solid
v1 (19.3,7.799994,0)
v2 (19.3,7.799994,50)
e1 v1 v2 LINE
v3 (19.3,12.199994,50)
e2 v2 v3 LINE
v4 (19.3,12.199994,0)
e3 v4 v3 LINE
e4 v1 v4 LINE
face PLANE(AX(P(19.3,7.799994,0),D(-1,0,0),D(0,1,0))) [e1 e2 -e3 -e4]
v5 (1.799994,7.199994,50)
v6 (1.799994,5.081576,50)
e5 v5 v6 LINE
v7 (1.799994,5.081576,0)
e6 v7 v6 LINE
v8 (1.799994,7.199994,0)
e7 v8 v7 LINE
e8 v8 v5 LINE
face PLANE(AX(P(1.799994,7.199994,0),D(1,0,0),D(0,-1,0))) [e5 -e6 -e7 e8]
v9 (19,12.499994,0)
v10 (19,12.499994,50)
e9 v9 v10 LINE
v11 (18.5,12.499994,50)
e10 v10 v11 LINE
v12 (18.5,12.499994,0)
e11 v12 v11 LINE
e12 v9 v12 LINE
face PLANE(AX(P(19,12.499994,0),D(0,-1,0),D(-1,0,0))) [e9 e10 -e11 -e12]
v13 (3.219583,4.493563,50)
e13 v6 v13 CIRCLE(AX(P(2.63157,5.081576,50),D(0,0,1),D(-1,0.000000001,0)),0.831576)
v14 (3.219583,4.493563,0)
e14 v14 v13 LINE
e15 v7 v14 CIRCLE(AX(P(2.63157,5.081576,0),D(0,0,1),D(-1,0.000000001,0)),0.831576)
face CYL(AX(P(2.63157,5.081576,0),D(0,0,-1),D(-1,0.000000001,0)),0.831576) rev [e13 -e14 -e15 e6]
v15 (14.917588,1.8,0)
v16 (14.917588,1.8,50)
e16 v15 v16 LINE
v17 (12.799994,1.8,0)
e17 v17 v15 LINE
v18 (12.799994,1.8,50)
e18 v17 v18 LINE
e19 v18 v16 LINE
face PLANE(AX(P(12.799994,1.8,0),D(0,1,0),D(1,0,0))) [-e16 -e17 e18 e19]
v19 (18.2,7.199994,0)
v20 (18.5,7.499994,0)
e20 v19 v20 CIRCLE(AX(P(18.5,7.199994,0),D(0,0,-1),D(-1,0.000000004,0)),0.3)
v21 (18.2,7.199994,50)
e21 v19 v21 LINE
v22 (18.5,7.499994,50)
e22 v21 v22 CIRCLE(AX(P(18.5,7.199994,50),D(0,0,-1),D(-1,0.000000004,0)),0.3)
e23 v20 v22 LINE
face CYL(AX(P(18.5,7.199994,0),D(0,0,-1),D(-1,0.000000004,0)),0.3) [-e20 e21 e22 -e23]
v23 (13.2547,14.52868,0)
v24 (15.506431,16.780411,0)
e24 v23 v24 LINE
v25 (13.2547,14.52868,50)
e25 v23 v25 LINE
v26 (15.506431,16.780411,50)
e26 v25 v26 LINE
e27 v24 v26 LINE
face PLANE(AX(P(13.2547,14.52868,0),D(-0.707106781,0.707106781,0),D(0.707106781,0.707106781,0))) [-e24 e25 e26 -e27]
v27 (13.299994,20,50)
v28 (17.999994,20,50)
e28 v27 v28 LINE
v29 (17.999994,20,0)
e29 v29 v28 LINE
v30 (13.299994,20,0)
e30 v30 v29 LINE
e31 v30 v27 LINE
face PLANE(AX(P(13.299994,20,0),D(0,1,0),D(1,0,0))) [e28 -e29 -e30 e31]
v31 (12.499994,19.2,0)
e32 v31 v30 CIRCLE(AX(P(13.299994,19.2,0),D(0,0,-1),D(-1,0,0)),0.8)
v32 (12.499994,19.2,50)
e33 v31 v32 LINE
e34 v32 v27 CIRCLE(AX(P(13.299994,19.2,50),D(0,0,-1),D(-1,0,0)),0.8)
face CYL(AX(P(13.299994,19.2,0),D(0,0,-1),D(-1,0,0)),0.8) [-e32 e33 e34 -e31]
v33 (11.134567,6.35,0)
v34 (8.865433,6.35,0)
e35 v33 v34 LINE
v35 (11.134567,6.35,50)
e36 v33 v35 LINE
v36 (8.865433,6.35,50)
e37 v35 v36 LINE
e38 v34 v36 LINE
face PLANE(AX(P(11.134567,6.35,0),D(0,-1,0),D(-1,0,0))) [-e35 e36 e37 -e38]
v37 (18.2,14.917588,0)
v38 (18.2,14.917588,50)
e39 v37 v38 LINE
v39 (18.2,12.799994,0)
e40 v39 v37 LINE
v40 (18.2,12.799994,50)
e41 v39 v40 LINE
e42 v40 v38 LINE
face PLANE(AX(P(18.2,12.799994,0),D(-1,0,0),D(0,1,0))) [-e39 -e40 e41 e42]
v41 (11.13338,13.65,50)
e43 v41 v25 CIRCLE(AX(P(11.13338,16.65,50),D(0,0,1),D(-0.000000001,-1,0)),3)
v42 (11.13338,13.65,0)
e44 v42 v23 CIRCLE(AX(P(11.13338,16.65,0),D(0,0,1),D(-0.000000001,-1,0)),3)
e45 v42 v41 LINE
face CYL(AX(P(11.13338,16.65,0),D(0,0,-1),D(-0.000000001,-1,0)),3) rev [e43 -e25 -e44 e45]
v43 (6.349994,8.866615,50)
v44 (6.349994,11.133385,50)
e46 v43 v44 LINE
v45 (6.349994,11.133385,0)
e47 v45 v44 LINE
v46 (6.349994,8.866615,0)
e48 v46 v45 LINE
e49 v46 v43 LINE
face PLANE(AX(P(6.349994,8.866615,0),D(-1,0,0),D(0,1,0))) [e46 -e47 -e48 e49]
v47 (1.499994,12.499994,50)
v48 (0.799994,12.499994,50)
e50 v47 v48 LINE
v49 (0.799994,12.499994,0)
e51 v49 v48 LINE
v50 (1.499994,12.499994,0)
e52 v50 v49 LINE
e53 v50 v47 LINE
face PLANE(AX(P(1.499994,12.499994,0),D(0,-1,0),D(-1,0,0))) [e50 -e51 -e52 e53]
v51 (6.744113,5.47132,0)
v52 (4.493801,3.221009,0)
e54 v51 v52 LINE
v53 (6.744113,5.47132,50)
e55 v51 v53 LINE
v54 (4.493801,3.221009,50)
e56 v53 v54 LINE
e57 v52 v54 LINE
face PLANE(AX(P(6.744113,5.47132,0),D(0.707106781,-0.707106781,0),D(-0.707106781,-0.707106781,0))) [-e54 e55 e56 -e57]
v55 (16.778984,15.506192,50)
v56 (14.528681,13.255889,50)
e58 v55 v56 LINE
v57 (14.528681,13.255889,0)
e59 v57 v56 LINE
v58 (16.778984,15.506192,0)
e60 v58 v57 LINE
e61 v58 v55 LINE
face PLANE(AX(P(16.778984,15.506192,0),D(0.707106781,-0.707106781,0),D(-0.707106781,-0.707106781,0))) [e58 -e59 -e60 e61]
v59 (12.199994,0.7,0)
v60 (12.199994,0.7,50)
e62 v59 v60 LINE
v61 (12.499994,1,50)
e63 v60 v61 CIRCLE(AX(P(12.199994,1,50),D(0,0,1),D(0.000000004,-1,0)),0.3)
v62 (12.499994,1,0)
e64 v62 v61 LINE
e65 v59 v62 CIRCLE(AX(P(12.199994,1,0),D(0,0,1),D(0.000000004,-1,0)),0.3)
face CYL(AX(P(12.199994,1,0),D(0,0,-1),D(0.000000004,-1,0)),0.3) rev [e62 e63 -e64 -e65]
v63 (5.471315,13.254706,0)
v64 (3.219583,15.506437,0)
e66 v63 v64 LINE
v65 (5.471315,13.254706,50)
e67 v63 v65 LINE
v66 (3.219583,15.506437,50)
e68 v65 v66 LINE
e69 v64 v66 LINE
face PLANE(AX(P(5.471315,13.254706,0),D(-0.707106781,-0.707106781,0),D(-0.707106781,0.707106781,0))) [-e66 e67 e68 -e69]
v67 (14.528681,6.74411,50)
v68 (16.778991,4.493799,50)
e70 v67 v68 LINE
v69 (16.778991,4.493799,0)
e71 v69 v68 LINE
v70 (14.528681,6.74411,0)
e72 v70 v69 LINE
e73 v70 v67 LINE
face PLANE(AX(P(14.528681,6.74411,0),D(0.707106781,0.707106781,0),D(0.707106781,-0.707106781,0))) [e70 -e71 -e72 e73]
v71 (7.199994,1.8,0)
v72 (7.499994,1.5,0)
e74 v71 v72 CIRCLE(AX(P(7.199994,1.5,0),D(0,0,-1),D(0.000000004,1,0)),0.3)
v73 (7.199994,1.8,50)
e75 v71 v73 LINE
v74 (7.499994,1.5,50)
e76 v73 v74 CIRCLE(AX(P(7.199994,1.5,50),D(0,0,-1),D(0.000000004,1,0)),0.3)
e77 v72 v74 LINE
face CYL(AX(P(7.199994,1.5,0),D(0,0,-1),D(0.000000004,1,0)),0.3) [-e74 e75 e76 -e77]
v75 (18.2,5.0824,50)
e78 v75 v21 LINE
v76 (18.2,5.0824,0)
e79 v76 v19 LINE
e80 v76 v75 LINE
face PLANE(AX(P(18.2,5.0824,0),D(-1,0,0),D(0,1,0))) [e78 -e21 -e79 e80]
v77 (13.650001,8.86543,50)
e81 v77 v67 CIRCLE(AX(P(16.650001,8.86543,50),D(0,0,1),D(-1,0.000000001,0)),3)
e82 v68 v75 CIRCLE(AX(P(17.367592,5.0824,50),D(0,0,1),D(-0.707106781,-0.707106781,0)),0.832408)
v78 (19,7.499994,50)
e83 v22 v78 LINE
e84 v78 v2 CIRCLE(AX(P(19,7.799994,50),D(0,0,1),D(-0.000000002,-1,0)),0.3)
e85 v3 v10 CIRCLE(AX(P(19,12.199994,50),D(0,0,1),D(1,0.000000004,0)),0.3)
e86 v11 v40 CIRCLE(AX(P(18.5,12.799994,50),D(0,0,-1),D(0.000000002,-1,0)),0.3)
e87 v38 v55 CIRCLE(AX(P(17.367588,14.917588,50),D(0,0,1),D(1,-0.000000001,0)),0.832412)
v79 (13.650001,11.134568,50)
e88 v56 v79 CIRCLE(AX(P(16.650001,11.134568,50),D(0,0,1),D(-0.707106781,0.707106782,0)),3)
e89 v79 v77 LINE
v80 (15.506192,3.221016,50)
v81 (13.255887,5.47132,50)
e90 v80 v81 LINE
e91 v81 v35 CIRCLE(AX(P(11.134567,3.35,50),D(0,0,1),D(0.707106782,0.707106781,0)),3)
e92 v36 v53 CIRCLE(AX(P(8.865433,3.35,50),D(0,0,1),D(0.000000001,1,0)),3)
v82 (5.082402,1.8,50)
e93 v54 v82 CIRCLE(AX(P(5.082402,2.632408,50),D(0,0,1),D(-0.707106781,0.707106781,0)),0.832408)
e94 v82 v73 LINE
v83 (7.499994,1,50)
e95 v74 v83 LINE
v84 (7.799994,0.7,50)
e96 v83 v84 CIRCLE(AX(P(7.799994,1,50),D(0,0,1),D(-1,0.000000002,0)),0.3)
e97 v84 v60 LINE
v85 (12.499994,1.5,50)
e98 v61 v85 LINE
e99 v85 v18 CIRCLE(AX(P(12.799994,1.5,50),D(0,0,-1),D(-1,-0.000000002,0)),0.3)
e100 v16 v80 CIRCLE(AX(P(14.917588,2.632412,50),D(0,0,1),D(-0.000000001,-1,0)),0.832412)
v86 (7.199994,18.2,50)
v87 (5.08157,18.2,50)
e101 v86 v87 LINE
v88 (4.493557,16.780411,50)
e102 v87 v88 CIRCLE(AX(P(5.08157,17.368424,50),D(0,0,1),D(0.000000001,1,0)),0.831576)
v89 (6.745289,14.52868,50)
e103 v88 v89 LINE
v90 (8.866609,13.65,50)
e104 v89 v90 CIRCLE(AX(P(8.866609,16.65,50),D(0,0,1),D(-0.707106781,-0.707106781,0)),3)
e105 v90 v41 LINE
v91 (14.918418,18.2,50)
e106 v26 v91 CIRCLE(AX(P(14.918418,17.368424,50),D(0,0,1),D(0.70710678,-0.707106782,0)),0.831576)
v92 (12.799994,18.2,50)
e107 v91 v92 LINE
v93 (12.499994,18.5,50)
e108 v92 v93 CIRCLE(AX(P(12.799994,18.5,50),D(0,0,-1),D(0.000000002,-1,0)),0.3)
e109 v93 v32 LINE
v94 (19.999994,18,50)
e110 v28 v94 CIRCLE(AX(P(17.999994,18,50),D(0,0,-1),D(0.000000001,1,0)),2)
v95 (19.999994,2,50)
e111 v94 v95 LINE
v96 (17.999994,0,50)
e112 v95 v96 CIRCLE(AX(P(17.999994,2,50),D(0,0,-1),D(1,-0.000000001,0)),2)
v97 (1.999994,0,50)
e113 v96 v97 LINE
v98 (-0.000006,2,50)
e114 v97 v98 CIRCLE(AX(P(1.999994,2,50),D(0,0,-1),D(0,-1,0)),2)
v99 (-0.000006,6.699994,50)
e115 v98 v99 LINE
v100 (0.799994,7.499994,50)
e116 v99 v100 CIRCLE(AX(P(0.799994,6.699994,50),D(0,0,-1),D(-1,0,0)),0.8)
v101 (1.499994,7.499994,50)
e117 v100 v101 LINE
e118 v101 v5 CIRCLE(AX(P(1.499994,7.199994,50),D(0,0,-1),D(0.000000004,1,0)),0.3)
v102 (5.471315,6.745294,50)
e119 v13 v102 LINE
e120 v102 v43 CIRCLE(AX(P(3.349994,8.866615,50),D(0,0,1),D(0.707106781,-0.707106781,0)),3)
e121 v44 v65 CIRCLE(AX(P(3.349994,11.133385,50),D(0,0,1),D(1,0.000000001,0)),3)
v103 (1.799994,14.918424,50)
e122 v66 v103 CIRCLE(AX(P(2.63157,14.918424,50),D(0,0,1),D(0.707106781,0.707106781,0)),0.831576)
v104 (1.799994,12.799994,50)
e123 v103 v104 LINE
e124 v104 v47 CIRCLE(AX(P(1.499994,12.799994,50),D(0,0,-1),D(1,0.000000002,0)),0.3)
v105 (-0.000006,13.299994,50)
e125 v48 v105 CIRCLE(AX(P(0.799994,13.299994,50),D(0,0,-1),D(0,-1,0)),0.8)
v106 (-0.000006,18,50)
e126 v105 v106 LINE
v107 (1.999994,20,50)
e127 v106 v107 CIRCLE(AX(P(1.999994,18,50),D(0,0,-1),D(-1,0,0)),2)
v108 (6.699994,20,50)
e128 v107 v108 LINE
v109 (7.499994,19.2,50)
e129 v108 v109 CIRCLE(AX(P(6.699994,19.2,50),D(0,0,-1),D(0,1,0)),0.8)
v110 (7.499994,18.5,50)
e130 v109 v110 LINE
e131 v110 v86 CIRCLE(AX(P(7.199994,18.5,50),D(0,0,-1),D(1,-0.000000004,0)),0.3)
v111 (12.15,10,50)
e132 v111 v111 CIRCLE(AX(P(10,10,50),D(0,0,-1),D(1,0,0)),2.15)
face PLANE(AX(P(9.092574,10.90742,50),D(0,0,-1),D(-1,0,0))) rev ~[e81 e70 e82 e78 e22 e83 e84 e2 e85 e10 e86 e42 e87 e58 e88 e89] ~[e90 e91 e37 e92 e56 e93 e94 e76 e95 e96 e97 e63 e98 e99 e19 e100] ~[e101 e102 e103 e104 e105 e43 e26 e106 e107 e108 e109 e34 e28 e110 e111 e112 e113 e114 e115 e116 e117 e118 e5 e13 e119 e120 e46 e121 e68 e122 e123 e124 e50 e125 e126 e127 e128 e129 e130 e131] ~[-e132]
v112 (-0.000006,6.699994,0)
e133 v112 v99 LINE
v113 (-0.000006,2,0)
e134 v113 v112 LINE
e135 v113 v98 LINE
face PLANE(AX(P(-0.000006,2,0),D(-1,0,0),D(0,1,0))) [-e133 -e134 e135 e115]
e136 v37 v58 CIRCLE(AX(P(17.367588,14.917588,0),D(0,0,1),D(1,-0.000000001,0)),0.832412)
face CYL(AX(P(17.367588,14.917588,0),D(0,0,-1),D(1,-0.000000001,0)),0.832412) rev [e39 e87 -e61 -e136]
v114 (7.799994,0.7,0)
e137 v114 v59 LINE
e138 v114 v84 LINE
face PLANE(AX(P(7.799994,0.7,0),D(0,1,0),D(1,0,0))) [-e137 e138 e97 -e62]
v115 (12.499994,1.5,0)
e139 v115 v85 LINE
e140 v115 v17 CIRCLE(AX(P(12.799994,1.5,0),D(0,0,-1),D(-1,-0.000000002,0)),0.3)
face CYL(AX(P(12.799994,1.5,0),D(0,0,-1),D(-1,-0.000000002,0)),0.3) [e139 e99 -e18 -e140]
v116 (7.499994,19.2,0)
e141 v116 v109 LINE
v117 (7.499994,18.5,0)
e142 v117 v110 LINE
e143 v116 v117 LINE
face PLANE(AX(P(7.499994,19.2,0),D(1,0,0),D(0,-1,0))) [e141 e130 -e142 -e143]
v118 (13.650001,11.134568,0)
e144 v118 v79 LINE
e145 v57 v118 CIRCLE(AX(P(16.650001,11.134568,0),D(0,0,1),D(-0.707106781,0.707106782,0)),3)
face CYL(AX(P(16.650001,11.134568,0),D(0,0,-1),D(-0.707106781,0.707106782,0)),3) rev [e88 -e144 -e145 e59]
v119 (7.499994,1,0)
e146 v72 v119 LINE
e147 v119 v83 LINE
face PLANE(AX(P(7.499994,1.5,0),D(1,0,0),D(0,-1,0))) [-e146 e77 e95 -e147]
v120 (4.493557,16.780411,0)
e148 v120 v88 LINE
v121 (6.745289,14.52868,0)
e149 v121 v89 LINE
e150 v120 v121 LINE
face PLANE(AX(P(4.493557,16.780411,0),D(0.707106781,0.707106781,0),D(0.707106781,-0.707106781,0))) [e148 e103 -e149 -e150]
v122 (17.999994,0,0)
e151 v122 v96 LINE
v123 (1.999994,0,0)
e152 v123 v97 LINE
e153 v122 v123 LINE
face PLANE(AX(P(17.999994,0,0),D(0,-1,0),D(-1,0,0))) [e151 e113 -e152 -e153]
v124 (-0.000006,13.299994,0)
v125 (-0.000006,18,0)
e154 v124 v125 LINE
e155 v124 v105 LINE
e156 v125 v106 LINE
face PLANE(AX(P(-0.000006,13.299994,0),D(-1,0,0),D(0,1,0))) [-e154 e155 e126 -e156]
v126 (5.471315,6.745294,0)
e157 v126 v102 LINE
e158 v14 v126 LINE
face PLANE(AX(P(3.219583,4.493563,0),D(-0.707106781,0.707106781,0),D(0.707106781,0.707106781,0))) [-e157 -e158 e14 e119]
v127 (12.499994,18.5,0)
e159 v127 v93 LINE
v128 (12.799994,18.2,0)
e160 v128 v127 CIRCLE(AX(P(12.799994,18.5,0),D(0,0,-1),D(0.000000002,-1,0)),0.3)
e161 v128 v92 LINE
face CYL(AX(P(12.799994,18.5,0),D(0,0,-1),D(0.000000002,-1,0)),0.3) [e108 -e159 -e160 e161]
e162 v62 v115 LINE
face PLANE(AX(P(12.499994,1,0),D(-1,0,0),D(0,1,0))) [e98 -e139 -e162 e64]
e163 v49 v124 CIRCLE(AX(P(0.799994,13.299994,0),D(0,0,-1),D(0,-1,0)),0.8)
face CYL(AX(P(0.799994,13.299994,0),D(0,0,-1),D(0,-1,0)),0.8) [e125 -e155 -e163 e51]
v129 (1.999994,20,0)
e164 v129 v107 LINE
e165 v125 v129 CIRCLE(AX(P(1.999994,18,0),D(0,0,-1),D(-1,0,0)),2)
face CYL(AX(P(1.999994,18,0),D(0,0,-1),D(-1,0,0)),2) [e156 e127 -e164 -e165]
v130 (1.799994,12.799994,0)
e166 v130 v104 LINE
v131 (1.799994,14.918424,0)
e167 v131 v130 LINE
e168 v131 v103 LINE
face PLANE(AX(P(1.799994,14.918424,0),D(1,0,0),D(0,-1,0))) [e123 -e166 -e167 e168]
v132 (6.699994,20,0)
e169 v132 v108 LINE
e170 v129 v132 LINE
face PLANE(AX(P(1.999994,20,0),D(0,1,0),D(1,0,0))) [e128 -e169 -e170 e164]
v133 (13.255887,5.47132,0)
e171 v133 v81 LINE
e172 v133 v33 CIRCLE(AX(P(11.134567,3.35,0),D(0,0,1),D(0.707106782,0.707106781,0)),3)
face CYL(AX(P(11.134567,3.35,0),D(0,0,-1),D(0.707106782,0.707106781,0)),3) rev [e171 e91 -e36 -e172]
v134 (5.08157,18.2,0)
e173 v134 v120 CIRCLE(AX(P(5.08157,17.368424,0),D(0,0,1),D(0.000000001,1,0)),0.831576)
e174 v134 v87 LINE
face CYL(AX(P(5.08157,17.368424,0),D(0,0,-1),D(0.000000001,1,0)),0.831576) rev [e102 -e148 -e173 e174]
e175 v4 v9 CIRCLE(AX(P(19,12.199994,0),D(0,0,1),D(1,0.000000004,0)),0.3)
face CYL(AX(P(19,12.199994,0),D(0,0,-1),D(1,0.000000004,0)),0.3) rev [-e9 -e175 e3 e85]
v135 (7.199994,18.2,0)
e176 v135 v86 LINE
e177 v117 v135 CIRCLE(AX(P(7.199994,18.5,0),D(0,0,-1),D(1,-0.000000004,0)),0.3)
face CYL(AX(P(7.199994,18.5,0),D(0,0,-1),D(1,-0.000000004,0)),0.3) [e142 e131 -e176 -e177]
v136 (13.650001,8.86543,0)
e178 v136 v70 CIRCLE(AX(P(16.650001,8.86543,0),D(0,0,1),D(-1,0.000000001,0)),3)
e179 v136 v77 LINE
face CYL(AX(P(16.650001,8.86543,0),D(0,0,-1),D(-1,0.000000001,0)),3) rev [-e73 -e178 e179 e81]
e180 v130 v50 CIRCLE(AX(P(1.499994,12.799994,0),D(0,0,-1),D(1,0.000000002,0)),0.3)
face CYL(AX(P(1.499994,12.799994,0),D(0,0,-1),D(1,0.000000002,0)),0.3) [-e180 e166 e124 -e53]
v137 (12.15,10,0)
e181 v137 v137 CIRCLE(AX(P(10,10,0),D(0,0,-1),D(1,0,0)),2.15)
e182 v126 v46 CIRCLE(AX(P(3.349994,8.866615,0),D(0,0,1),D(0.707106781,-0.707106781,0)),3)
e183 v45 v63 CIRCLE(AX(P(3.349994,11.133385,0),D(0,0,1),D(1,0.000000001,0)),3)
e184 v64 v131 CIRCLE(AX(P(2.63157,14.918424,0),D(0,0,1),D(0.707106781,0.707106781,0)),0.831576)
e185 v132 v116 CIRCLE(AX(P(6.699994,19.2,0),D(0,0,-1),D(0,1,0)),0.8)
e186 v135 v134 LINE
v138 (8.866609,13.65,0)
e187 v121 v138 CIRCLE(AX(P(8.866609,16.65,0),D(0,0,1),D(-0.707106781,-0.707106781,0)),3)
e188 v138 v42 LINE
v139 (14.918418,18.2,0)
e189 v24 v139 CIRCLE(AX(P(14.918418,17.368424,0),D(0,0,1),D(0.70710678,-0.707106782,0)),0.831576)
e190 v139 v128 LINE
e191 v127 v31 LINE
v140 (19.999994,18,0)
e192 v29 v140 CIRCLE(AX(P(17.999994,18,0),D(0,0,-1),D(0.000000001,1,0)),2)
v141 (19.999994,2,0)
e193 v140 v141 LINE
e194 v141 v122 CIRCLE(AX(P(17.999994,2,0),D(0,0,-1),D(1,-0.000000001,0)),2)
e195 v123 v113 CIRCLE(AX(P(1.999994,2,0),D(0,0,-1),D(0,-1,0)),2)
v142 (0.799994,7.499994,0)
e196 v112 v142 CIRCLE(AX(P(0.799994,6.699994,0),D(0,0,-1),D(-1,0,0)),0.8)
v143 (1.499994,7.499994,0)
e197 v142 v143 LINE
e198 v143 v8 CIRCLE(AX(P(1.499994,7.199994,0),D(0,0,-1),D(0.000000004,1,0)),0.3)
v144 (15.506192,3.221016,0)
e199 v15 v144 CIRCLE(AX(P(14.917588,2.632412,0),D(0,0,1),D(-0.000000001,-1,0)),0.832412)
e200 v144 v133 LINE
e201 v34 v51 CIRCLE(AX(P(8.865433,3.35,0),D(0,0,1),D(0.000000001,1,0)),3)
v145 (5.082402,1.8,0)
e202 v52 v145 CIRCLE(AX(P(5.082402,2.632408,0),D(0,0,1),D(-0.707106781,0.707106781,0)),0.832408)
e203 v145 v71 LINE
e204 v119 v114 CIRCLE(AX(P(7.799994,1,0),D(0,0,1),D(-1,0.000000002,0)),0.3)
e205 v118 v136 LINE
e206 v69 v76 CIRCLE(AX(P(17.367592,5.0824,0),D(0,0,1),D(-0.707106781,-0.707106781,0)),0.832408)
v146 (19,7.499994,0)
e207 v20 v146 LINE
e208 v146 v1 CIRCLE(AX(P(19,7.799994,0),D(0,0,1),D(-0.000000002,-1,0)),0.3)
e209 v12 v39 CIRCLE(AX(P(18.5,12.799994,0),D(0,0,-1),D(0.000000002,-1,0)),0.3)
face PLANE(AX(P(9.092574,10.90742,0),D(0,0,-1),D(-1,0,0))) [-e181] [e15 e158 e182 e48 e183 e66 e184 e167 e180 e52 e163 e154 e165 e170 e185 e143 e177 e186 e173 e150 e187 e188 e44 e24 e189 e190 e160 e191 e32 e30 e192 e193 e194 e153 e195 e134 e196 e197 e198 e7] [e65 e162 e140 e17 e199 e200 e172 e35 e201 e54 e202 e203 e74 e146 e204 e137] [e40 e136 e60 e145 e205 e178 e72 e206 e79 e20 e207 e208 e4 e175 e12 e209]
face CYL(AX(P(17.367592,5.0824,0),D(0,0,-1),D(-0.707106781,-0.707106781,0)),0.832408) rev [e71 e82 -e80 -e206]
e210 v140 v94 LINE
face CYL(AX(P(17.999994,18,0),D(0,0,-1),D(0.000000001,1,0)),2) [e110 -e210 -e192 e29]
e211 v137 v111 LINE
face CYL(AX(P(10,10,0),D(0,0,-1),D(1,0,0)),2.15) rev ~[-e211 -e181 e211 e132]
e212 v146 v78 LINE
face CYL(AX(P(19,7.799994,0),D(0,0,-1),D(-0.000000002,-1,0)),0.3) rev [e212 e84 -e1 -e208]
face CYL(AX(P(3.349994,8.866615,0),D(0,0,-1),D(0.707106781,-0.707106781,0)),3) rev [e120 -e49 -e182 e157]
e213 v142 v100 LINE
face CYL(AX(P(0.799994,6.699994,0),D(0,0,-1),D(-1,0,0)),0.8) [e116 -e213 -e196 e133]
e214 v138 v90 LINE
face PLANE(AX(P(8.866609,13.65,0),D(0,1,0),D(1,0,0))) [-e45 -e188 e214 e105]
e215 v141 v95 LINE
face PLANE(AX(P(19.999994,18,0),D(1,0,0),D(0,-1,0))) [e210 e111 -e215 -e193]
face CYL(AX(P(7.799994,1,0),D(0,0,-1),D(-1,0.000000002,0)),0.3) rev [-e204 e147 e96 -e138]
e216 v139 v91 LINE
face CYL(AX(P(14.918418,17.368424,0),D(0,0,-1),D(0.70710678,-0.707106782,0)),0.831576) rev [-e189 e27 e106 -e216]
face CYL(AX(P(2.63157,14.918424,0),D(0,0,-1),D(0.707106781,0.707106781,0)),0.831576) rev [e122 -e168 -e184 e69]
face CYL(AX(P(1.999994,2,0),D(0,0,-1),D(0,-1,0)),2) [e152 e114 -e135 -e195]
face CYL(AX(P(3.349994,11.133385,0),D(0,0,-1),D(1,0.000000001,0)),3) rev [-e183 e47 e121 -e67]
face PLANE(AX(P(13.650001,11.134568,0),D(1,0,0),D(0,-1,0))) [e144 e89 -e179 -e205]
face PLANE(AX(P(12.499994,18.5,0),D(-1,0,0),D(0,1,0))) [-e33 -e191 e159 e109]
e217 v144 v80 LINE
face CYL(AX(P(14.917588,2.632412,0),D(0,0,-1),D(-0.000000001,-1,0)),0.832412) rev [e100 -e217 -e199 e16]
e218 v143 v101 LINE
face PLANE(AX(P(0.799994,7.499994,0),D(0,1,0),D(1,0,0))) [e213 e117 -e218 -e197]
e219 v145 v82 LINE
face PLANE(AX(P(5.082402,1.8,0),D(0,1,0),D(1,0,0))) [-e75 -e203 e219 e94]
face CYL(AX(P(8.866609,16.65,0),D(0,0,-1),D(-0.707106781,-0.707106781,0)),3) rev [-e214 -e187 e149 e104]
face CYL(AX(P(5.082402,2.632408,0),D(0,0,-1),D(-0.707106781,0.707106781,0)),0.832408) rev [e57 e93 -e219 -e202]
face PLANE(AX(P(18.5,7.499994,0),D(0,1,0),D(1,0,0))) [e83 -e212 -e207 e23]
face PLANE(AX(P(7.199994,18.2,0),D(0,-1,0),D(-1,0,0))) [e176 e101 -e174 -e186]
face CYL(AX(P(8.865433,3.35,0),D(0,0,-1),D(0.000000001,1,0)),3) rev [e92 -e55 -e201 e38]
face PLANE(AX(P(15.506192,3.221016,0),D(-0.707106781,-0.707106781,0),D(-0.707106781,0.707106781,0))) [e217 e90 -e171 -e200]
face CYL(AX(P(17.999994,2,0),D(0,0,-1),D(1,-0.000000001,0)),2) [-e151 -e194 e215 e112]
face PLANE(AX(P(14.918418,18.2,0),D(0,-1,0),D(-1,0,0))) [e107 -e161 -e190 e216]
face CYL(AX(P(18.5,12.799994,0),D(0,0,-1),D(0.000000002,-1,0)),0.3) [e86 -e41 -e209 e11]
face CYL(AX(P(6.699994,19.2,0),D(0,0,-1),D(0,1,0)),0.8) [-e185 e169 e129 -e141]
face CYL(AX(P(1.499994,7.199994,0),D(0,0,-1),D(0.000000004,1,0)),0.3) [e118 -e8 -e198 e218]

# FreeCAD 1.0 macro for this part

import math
import FreeCAD as App
import Part
import Sketcher
from FreeCAD import Vector
Q = App.Units.Quantity

doc = App.newDocument("Part")
body = doc.addObject("PartDesign::Body", "Body")

sketch1 = doc.addObject("Sketcher::SketchObject", "Sketch")
body.addObject(sketch1)
sketch1.AttachmentSupport = (doc.XY_Plane, [""])
sketch1.MapMode = "FlatFace"
sketch1.addGeometry(Part.LineSegment(Vector(17.999994, 0, 0), Vector(1.999994, 0, 0)), False)
sketch1.addGeometry(Part.ArcOfCircle(Part.Circle(Vector(1.999994, 2, 0), Vector(0, 0, 1), 2), math.radians(180), math.radians(270)), False)
sketch1.addGeometry(Part.LineSegment(Vector(-0.000006, 2, 0), Vector(-0.000006, 6.699994, 0)), False)
sketch1.addGeometry(Part.ArcOfCircle(Part.Circle(Vector(0.799994, 6.699994, 0), Vector(0, 0, 1), 0.8), math.radians(90), math.radians(180)), False)
sketch1.addGeometry(Part.LineSegment(Vector(0.799994, 7.499994, 0), Vector(1.499994, 7.499994, 0)), False)
sketch1.addGeometry(Part.ArcOfCircle(Part.Circle(Vector(1.499994, 7.199994, 0), Vector(0, 0, 1), 0.3), math.radians(0), math.radians(90)), False)
sketch1.addGeometry(Part.LineSegment(Vector(1.799994, 7.199994, 0), Vector(1.799994, 5.081576, 0)), False)
sketch1.addGeometry(Part.ArcOfCircle(Part.Circle(Vector(2.63157, 5.081576, 0), Vector(0, 0, 1), 0.831576), math.radians(180), math.radians(315)), False)
sketch1.addGeometry(Part.LineSegment(Vector(3.219583, 4.493563, 0), Vector(5.471315, 6.745294, 0)), False)
sketch1.addGeometry(Part.ArcOfCircle(Part.Circle(Vector(3.349994, 8.866615, 0), Vector(0, 0, 1), 3), math.radians(-45), math.radians(0)), False)
sketch1.addGeometry(Part.LineSegment(Vector(6.349994, 8.866615, 0), Vector(6.349994, 11.133385, 0)), False)
sketch1.addGeometry(Part.ArcOfCircle(Part.Circle(Vector(3.349994, 11.133385, 0), Vector(0, 0, 1), 3), math.radians(0), math.radians(45)), False)
sketch1.addGeometry(Part.LineSegment(Vector(5.471315, 13.254706, 0), Vector(3.219583, 15.506437, 0)), False)
sketch1.addGeometry(Part.ArcOfCircle(Part.Circle(Vector(2.63157, 14.918424, 0), Vector(0, 0, 1), 0.831576), math.radians(45), math.radians(180)), False)
sketch1.addGeometry(Part.LineSegment(Vector(1.799994, 14.918424, 0), Vector(1.799994, 12.799994, 0)), False)
sketch1.addGeometry(Part.ArcOfCircle(Part.Circle(Vector(1.499994, 12.799994, 0), Vector(0, 0, 1), 0.3), math.radians(-90), math.radians(0)), False)
sketch1.addGeometry(Part.LineSegment(Vector(1.499994, 12.499994, 0), Vector(0.799994, 12.499994, 0)), False)
sketch1.addGeometry(Part.ArcOfCircle(Part.Circle(Vector(0.799994, 13.299994, 0), Vector(0, 0, 1), 0.8), math.radians(180), math.radians(270)), False)
sketch1.addGeometry(Part.LineSegment(Vector(-0.000006, 13.299994, 0), Vector(-0.000006, 18, 0)), False)
sketch1.addGeometry(Part.ArcOfCircle(Part.Circle(Vector(1.999994, 18, 0), Vector(0, 0, 1), 2), math.radians(90), math.radians(180)), False)
sketch1.addGeometry(Part.LineSegment(Vector(1.999994, 20, 0), Vector(6.699994, 20, 0)), False)
sketch1.addGeometry(Part.ArcOfCircle(Part.Circle(Vector(6.699994, 19.2, 0), Vector(0, 0, 1), 0.8), math.radians(0), math.radians(90)), False)
sketch1.addGeometry(Part.LineSegment(Vector(7.499994, 19.2, 0), Vector(7.499994, 18.5, 0)), False)
sketch1.addGeometry(Part.ArcOfCircle(Part.Circle(Vector(7.199994, 18.5, 0), Vector(0, 0, 1), 0.3), math.radians(-90), math.radians(0)), False)
sketch1.addGeometry(Part.LineSegment(Vector(7.199994, 18.2, 0), Vector(5.08157, 18.2, 0)), False)
sketch1.addGeometry(Part.ArcOfCircle(Part.Circle(Vector(5.08157, 17.368424, 0), Vector(0, 0, 1), 0.831576), math.radians(90), math.radians(225)), False)
sketch1.addGeometry(Part.LineSegment(Vector(4.493557, 16.780411, 0), Vector(6.745289, 14.52868, 0)), False)
sketch1.addGeometry(Part.ArcOfCircle(Part.Circle(Vector(8.866609, 16.65, 0), Vector(0, 0, 1), 3), math.radians(-135), math.radians(-90)), False)
sketch1.addGeometry(Part.LineSegment(Vector(8.866609, 13.65, 0), Vector(11.13338, 13.65, 0)), False)
sketch1.addGeometry(Part.ArcOfCircle(Part.Circle(Vector(11.13338, 16.65, 0), Vector(0, 0, 1), 3), math.radians(-90), math.radians(-45)), False)
sketch1.addGeometry(Part.LineSegment(Vector(13.2547, 14.52868, 0), Vector(15.506431, 16.780411, 0)), False)
sketch1.addGeometry(Part.ArcOfCircle(Part.Circle(Vector(14.918418, 17.368424, 0), Vector(0, 0, 1), 0.831576), math.radians(-45), math.radians(90)), False)
sketch1.addGeometry(Part.LineSegment(Vector(14.918418, 18.2, 0), Vector(12.799994, 18.2, 0)), False)
sketch1.addGeometry(Part.ArcOfCircle(Part.Circle(Vector(12.799994, 18.5, 0), Vector(0, 0, 1), 0.3), math.radians(180), math.radians(270)), False)
sketch1.addGeometry(Part.LineSegment(Vector(12.499994, 18.5, 0), Vector(12.499994, 19.2, 0)), False)
sketch1.addGeometry(Part.ArcOfCircle(Part.Circle(Vector(13.299994, 19.2, 0), Vector(0, 0, 1), 0.8), math.radians(90), math.radians(180)), False)
sketch1.addGeometry(Part.LineSegment(Vector(13.299994, 20, 0), Vector(17.999994, 20, 0)), False)
sketch1.addGeometry(Part.ArcOfCircle(Part.Circle(Vector(17.999994, 18, 0), Vector(0, 0, 1), 2), math.radians(0), math.radians(90)), False)
sketch1.addGeometry(Part.LineSegment(Vector(19.999994, 18, 0), Vector(19.999994, 2, 0)), False)
sketch1.addGeometry(Part.ArcOfCircle(Part.Circle(Vector(17.999994, 2, 0), Vector(0, 0, 1), 2), math.radians(-90), math.radians(0)), False)
sketch1.addGeometry(Part.ArcOfCircle(Part.Circle(Vector(14.917588, 2.632412, 0), Vector(0, 0, 1), 0.832412), math.radians(-90), math.radians(45)), False)
sketch1.addGeometry(Part.LineSegment(Vector(15.506192, 3.221016, 0), Vector(13.255887, 5.47132, 0)), False)
sketch1.addGeometry(Part.ArcOfCircle(Part.Circle(Vector(11.134567, 3.35, 0), Vector(0, 0, 1), 3), math.radians(45), math.radians(90)), False)
sketch1.addGeometry(Part.LineSegment(Vector(11.134567, 6.35, 0), Vector(8.865433, 6.35, 0)), False)
sketch1.addGeometry(Part.ArcOfCircle(Part.Circle(Vector(8.865433, 3.35, 0), Vector(0, 0, 1), 3), math.radians(90), math.radians(135)), False)
sketch1.addGeometry(Part.LineSegment(Vector(6.744113, 5.47132, 0), Vector(4.493801, 3.221009, 0)), False)
sketch1.addGeometry(Part.ArcOfCircle(Part.Circle(Vector(5.082402, 2.632408, 0), Vector(0, 0, 1), 0.832408), math.radians(135), math.radians(270)), False)
sketch1.addGeometry(Part.LineSegment(Vector(5.082402, 1.8, 0), Vector(7.199994, 1.8, 0)), False)
sketch1.addGeometry(Part.ArcOfCircle(Part.Circle(Vector(7.199994, 1.5, 0), Vector(0, 0, 1), 0.3), math.radians(0), math.radians(90)), False)
sketch1.addGeometry(Part.LineSegment(Vector(7.499994, 1.5, 0), Vector(7.499994, 1, 0)), False)
sketch1.addGeometry(Part.ArcOfCircle(Part.Circle(Vector(7.799994, 1, 0), Vector(0, 0, 1), 0.3), math.radians(180), math.radians(270)), False)
sketch1.addGeometry(Part.LineSegment(Vector(7.799994, 0.7, 0), Vector(12.199994, 0.7, 0)), False)
sketch1.addGeometry(Part.ArcOfCircle(Part.Circle(Vector(12.199994, 1, 0), Vector(0, 0, 1), 0.3), math.radians(-90), math.radians(0)), False)
sketch1.addGeometry(Part.LineSegment(Vector(12.499994, 1, 0), Vector(12.499994, 1.5, 0)), False)
sketch1.addGeometry(Part.ArcOfCircle(Part.Circle(Vector(12.799994, 1.5, 0), Vector(0, 0, 1), 0.3), math.radians(90), math.radians(180)), False)
sketch1.addGeometry(Part.LineSegment(Vector(12.799994, 1.8, 0), Vector(14.917588, 1.8, 0)), False)
sketch1.addGeometry(Part.ArcOfCircle(Part.Circle(Vector(17.367588, 14.917588, 0), Vector(0, 0, 1), 0.832412), math.radians(0), math.radians(135)), False)
sketch1.addGeometry(Part.LineSegment(Vector(16.778984, 15.506192, 0), Vector(14.528681, 13.255889, 0)), False)
sketch1.addGeometry(Part.ArcOfCircle(Part.Circle(Vector(16.650001, 11.134568, 0), Vector(0, 0, 1), 3), math.radians(135), math.radians(180)), False)
sketch1.addGeometry(Part.LineSegment(Vector(13.650001, 11.134568, 0), Vector(13.650001, 8.86543, 0)), False)
sketch1.addGeometry(Part.ArcOfCircle(Part.Circle(Vector(16.650001, 8.86543, 0), Vector(0, 0, 1), 3), math.radians(180), math.radians(225)), False)
sketch1.addGeometry(Part.LineSegment(Vector(14.528681, 6.74411, 0), Vector(16.778991, 4.493799, 0)), False)
sketch1.addGeometry(Part.ArcOfCircle(Part.Circle(Vector(17.367592, 5.0824, 0), Vector(0, 0, 1), 0.832408), math.radians(-135), math.radians(0)), False)
sketch1.addGeometry(Part.LineSegment(Vector(18.2, 5.0824, 0), Vector(18.2, 7.199994, 0)), False)
sketch1.addGeometry(Part.ArcOfCircle(Part.Circle(Vector(18.5, 7.199994, 0), Vector(0, 0, 1), 0.3), math.radians(90), math.radians(180)), False)
sketch1.addGeometry(Part.LineSegment(Vector(18.5, 7.499994, 0), Vector(19, 7.499994, 0)), False)
sketch1.addGeometry(Part.ArcOfCircle(Part.Circle(Vector(19, 7.799994, 0), Vector(0, 0, 1), 0.3), math.radians(-90), math.radians(0)), False)
sketch1.addGeometry(Part.LineSegment(Vector(19.3, 7.799994, 0), Vector(19.3, 12.199994, 0)), False)
sketch1.addGeometry(Part.ArcOfCircle(Part.Circle(Vector(19, 12.199994, 0), Vector(0, 0, 1), 0.3), math.radians(0), math.radians(90)), False)
sketch1.addGeometry(Part.LineSegment(Vector(19, 12.499994, 0), Vector(18.5, 12.499994, 0)), False)
sketch1.addGeometry(Part.ArcOfCircle(Part.Circle(Vector(18.5, 12.799994, 0), Vector(0, 0, 1), 0.3), math.radians(180), math.radians(270)), False)
sketch1.addGeometry(Part.LineSegment(Vector(18.2, 12.799994, 0), Vector(18.2, 14.917588, 0)), False)
sketch1.addGeometry(Part.Circle(Vector(10, 10, 0), Vector(0, 0, 1), 2.15), False)
sketch1.addConstraint(Sketcher.Constraint("Tangent", 0, 2, 1, 2))
sketch1.addConstraint(Sketcher.Constraint("Tangent", 1, 1, 2, 1))
sketch1.addConstraint(Sketcher.Constraint("Tangent", 2, 2, 3, 2))
sketch1.addConstraint(Sketcher.Constraint("Tangent", 3, 1, 4, 1))
sketch1.addConstraint(Sketcher.Constraint("Tangent", 4, 2, 5, 2))
sketch1.addConstraint(Sketcher.Constraint("Tangent", 5, 1, 6, 1))
sketch1.addConstraint(Sketcher.Constraint("Tangent", 6, 2, 7, 1))
sketch1.addConstraint(Sketcher.Constraint("Tangent", 7, 2, 8, 1))
sketch1.addConstraint(Sketcher.Constraint("Tangent", 8, 2, 9, 1))
sketch1.addConstraint(Sketcher.Constraint("Tangent", 9, 2, 10, 1))
sketch1.addConstraint(Sketcher.Constraint("Tangent", 10, 2, 11, 1))
sketch1.addConstraint(Sketcher.Constraint("Tangent", 11, 2, 12, 1))
sketch1.addConstraint(Sketcher.Constraint("Tangent", 12, 2, 13, 1))
sketch1.addConstraint(Sketcher.Constraint("Tangent", 13, 2, 14, 1))
sketch1.addConstraint(Sketcher.Constraint("Tangent", 14, 2, 15, 2))
sketch1.addConstraint(Sketcher.Constraint("Tangent", 15, 1, 16, 1))
sketch1.addConstraint(Sketcher.Constraint("Tangent", 16, 2, 17, 2))
sketch1.addConstraint(Sketcher.Constraint("Tangent", 17, 1, 18, 1))
sketch1.addConstraint(Sketcher.Constraint("Tangent", 18, 2, 19, 2))
sketch1.addConstraint(Sketcher.Constraint("Tangent", 19, 1, 20, 1))
sketch1.addConstraint(Sketcher.Constraint("Tangent", 20, 2, 21, 2))
sketch1.addConstraint(Sketcher.Constraint("Tangent", 21, 1, 22, 1))
sketch1.addConstraint(Sketcher.Constraint("Tangent", 22, 2, 23, 2))
sketch1.addConstraint(Sketcher.Constraint("Tangent", 23, 1, 24, 1))
sketch1.addConstraint(Sketcher.Constraint("Tangent", 24, 2, 25, 1))
sketch1.addConstraint(Sketcher.Constraint("Tangent", 25, 2, 26, 1))
sketch1.addConstraint(Sketcher.Constraint("Tangent", 26, 2, 27, 1))
sketch1.addConstraint(Sketcher.Constraint("Tangent", 27, 2, 28, 1))
sketch1.addConstraint(Sketcher.Constraint("Tangent", 28, 2, 29, 1))
sketch1.addConstraint(Sketcher.Constraint("Tangent", 29, 2, 30, 1))
sketch1.addConstraint(Sketcher.Constraint("Tangent", 30, 2, 31, 1))
sketch1.addConstraint(Sketcher.Constraint("Tangent", 31, 2, 32, 1))
sketch1.addConstraint(Sketcher.Constraint("Tangent", 32, 2, 33, 2))
sketch1.addConstraint(Sketcher.Constraint("Tangent", 33, 1, 34, 1))
sketch1.addConstraint(Sketcher.Constraint("Tangent", 34, 2, 35, 2))
sketch1.addConstraint(Sketcher.Constraint("Tangent", 35, 1, 36, 1))
sketch1.addConstraint(Sketcher.Constraint("Tangent", 36, 2, 37, 2))
sketch1.addConstraint(Sketcher.Constraint("Tangent", 37, 1, 38, 1))
sketch1.addConstraint(Sketcher.Constraint("Tangent", 38, 2, 39, 2))
sketch1.addConstraint(Sketcher.Constraint("Tangent", 39, 1, 0, 1))
sketch1.addConstraint(Sketcher.Constraint("Tangent", 40, 2, 41, 1))
sketch1.addConstraint(Sketcher.Constraint("Tangent", 41, 2, 42, 1))
sketch1.addConstraint(Sketcher.Constraint("Tangent", 42, 2, 43, 1))
sketch1.addConstraint(Sketcher.Constraint("Tangent", 43, 2, 44, 1))
sketch1.addConstraint(Sketcher.Constraint("Tangent", 44, 2, 45, 1))
sketch1.addConstraint(Sketcher.Constraint("Tangent", 45, 2, 46, 1))
sketch1.addConstraint(Sketcher.Constraint("Tangent", 46, 2, 47, 1))
sketch1.addConstraint(Sketcher.Constraint("Tangent", 47, 2, 48, 2))
sketch1.addConstraint(Sketcher.Constraint("Tangent", 48, 1, 49, 1))
sketch1.addConstraint(Sketcher.Constraint("Tangent", 49, 2, 50, 1))
sketch1.addConstraint(Sketcher.Constraint("Tangent", 50, 2, 51, 1))
sketch1.addConstraint(Sketcher.Constraint("Tangent", 51, 2, 52, 1))
sketch1.addConstraint(Sketcher.Constraint("Tangent", 52, 2, 53, 1))
sketch1.addConstraint(Sketcher.Constraint("Tangent", 53, 2, 54, 2))
sketch1.addConstraint(Sketcher.Constraint("Tangent", 54, 1, 55, 1))
sketch1.addConstraint(Sketcher.Constraint("Tangent", 55, 2, 40, 1))
sketch1.addConstraint(Sketcher.Constraint("Tangent", 56, 2, 57, 1))
sketch1.addConstraint(Sketcher.Constraint("Tangent", 57, 2, 58, 1))
sketch1.addConstraint(Sketcher.Constraint("Tangent", 58, 2, 59, 1))
sketch1.addConstraint(Sketcher.Constraint("Tangent", 59, 2, 60, 1))
sketch1.addConstraint(Sketcher.Constraint("Tangent", 60, 2, 61, 1))
sketch1.addConstraint(Sketcher.Constraint("Tangent", 61, 2, 62, 1))
sketch1.addConstraint(Sketcher.Constraint("Tangent", 62, 2, 63, 1))
sketch1.addConstraint(Sketcher.Constraint("Tangent", 63, 2, 64, 2))
sketch1.addConstraint(Sketcher.Constraint("Tangent", 64, 1, 65, 1))
sketch1.addConstraint(Sketcher.Constraint("Tangent", 65, 2, 66, 1))
sketch1.addConstraint(Sketcher.Constraint("Tangent", 66, 2, 67, 1))
sketch1.addConstraint(Sketcher.Constraint("Tangent", 67, 2, 68, 1))
sketch1.addConstraint(Sketcher.Constraint("Tangent", 68, 2, 69, 1))
sketch1.addConstraint(Sketcher.Constraint("Tangent", 69, 2, 70, 2))
sketch1.addConstraint(Sketcher.Constraint("Tangent", 70, 1, 71, 1))
sketch1.addConstraint(Sketcher.Constraint("Tangent", 71, 2, 56, 1))
sketch1.addConstraint(Sketcher.Constraint("Horizontal", 0))
sketch1.addConstraint(Sketcher.Constraint("Vertical", 2))
sketch1.addConstraint(Sketcher.Constraint("Horizontal", 4))
sketch1.addConstraint(Sketcher.Constraint("Vertical", 6))
sketch1.addConstraint(Sketcher.Constraint("Vertical", 10))
sketch1.addConstraint(Sketcher.Constraint("Vertical", 14))
sketch1.addConstraint(Sketcher.Constraint("Horizontal", 16))
sketch1.addConstraint(Sketcher.Constraint("Vertical", 18))
sketch1.addConstraint(Sketcher.Constraint("Horizontal", 20))
sketch1.addConstraint(Sketcher.Constraint("Vertical", 22))
sketch1.addConstraint(Sketcher.Constraint("Horizontal", 24))
sketch1.addConstraint(Sketcher.Constraint("Horizontal", 28))
sketch1.addConstraint(Sketcher.Constraint("Horizontal", 32))
sketch1.addConstraint(Sketcher.Constraint("Vertical", 34))
sketch1.addConstraint(Sketcher.Constraint("Horizontal", 36))
sketch1.addConstraint(Sketcher.Constraint("Vertical", 38))
sketch1.addConstraint(Sketcher.Constraint("Horizontal", 43))
sketch1.addConstraint(Sketcher.Constraint("Horizontal", 47))
sketch1.addConstraint(Sketcher.Constraint("Vertical", 49))
sketch1.addConstraint(Sketcher.Constraint("Horizontal", 51))
sketch1.addConstraint(Sketcher.Constraint("Vertical", 53))
sketch1.addConstraint(Sketcher.Constraint("Horizontal", 55))
sketch1.addConstraint(Sketcher.Constraint("Vertical", 59))
sketch1.addConstraint(Sketcher.Constraint("Vertical", 63))
sketch1.addConstraint(Sketcher.Constraint("Horizontal", 65))
sketch1.addConstraint(Sketcher.Constraint("Vertical", 67))
sketch1.addConstraint(Sketcher.Constraint("Horizontal", 69))
sketch1.addConstraint(Sketcher.Constraint("Vertical", 71))
sketch1.addConstraint(Sketcher.Constraint("Equal", 9, 11))
sketch1.addConstraint(Sketcher.Constraint("Equal", 7, 13))
sketch1.addConstraint(Sketcher.Constraint("Equal", 5, 15))
sketch1.addConstraint(Sketcher.Constraint("Equal", 3, 17))
sketch1.addConstraint(Sketcher.Constraint("Equal", 1, 19))
sketch1.addConstraint(Sketcher.Constraint("Equal", 17, 21))
sketch1.addConstraint(Sketcher.Constraint("Equal", 15, 23))
sketch1.addConstraint(Sketcher.Constraint("Equal", 13, 25))
sketch1.addConstraint(Sketcher.Constraint("Equal", 11, 27))
sketch1.addConstraint(Sketcher.Constraint("Equal", 27, 29))
sketch1.addConstraint(Sketcher.Constraint("Equal", 25, 31))
sketch1.addConstraint(Sketcher.Constraint("Equal", 23, 33))
sketch1.addConstraint(Sketcher.Constraint("Equal", 21, 35))
sketch1.addConstraint(Sketcher.Constraint("Equal", 19, 37))
sketch1.addConstraint(Sketcher.Constraint("Equal", 37, 39))
sketch1.addConstraint(Sketcher.Constraint("Equal", 29, 42))
sketch1.addConstraint(Sketcher.Constraint("Equal", 42, 44))
sketch1.addConstraint(Sketcher.Constraint("Equal", 33, 48))
sketch1.addConstraint(Sketcher.Constraint("Equal", 48, 50))
sketch1.addConstraint(Sketcher.Constraint("Equal", 50, 52))
sketch1.addConstraint(Sketcher.Constraint("Equal", 52, 54))
sketch1.addConstraint(Sketcher.Constraint("Equal", 40, 56))
sketch1.addConstraint(Sketcher.Constraint("Equal", 44, 58))
sketch1.addConstraint(Sketcher.Constraint("Equal", 58, 60))
sketch1.addConstraint(Sketcher.Constraint("Equal", 46, 62))
sketch1.addConstraint(Sketcher.Constraint("Equal", 54, 64))
sketch1.addConstraint(Sketcher.Constraint("Equal", 64, 66))
sketch1.addConstraint(Sketcher.Constraint("Equal", 66, 68))
sketch1.addConstraint(Sketcher.Constraint("Equal", 68, 70))
sketch1.addConstraint(Sketcher.Constraint("PointOnObject", 0, 2, -1))
sketch1.addConstraint(Sketcher.Constraint("Perpendicular", 8, 12))
sketch1.addConstraint(Sketcher.Constraint("Parallel", 12, 26))
sketch1.addConstraint(Sketcher.Constraint("Perpendicular", 26, 30))
sketch1.addConstraint(Sketcher.Constraint("Perpendicular", 30, 41))
sketch1.addConstraint(Sketcher.Constraint("Perpendicular", 41, 45))
sketch1.addConstraint(Sketcher.Constraint("Parallel", 45, 57))
sketch1.addConstraint(Sketcher.Constraint("Perpendicular", 57, 61))
sketch1.addConstraint(Sketcher.Constraint("Horizontal", 25, 3, 31, 3))
sketch1.addConstraint(Sketcher.Constraint("Horizontal", 21, 3, 35, 3))
sketch1.addConstraint(Sketcher.Constraint("Horizontal", 48, 3, 54, 3))
sketch1.addConstraint(Sketcher.Constraint("Horizontal", 5, 3, 64, 3))
sketch1.addConstraint(Sketcher.Constraint("Horizontal", 15, 3, 70, 3))
sketch1.addConstraint(Sketcher.Constraint("Horizontal", 26, 2, 29, 2))
sketch1.addConstraint(Sketcher.Constraint("Vertical", 7, 3, 13, 3))
sketch1.addConstraint(Sketcher.Constraint("Vertical", 3, 3, 17, 3))
sketch1.addConstraint(Sketcher.Constraint("Vertical", 23, 3, 48, 3))
sketch1.addConstraint(Sketcher.Constraint("Vertical", 33, 3, 54, 3))
sketch1.addConstraint(Sketcher.Constraint("Vertical", 64, 3, 70, 3))
sketch1.addConstraint(Sketcher.Constraint("Equal", 24, 32))
sketch1.addConstraint(Sketcher.Constraint("Equal", 20, 36))
sketch1.addConstraint(Sketcher.Constraint("Equal", 47, 55))
sketch1.addConstraint(Sketcher.Constraint("Equal", 28, 10))
sketch1.addConstraint(Sketcher.Constraint("Equal", 16, 22))
sketch1.addConstraint(Sketcher.Constraint("Equal", 0, 38))
sketch1.addConstraint(Sketcher.Constraint("Equal", 69, 49))
sketch1.addConstraint(Sketcher.Constraint("Equal", 55, 63))
sketch1.addConstraint(Sketcher.Constraint("Equal", 51, 67))
sketch1.addConstraint(Sketcher.Constraint("Equal", 63, 71))
sketch1.addConstraint(Sketcher.Constraint("Equal", 12, 26))
sketch1.addConstraint(Sketcher.Constraint("Equal", 41, 57))
sketch1.addConstraint(Sketcher.Constraint("Radius", 1, Q("2 mm")))
sketch1.addConstraint(Sketcher.Constraint("Radius", 9, Q("3 mm")))
sketch1.addConstraint(Sketcher.Constraint("Diameter", 72, Q("4.3 mm")))
sketch1.addConstraint(Sketcher.Constraint("Radius", 3, Q("0.8 mm")))
sketch1.addConstraint(Sketcher.Constraint("Radius", 5, Q("0.3 mm")))
sketch1.addConstraint(Sketcher.Constraint("DistanceX", 0, 2, 0, 1, Q("16 mm")))
sketch1.addConstraint(Sketcher.Constraint("DistanceX", 4, 1, 4, 2, Q("0.7 mm")))
sketch1.addConstraint(Sketcher.Constraint("DistanceX", 20, 1, 20, 2, Q("4.7 mm")))
sketch1.addConstraint(Sketcher.Constraint("DistanceX", 65, 1, 65, 2, Q("0.5 mm")))
sketch1.addConstraint(Sketcher.Constraint("DistanceY", -1, 1, 50, 3, Q("1 mm")))
sketch1.addConstraint(Sketcher.Constraint("DistanceX", -1, 1, 66, 3, Q("19 mm")))
sketch1.addConstraint(Sketcher.Constraint("DistanceX", -1, 1, 72, 3, Q("10 mm")))
sketch1.addConstraint(Sketcher.Constraint("DistanceY", -1, 1, 72, 3, Q("10 mm")))
sketch1.addConstraint(Sketcher.Constraint("DistanceY", -1, 1, 27, 3, Q("16.65 mm")))
sketch1.addConstraint(Sketcher.Constraint("DistanceY", -1, 1, 42, 3, Q("3.35 mm")))
sketch1.addConstraint(Sketcher.Constraint("Radius", 40, Q("0.832412 mm")))
sketch1.addConstraint(Sketcher.Constraint("Radius", 7, Q("0.831576 mm")))
sketch1.addConstraint(Sketcher.Constraint("Radius", 46, Q("0.832408 mm")))
sketch1.addConstraint(Sketcher.Constraint("DistanceX", 28, 1, 28, 2, Q("2.266771 mm")))
sketch1.addConstraint(Sketcher.Constraint("DistanceY", 6, 2, 6, 1, Q("2.118418 mm")))
sketch1.addConstraint(Sketcher.Constraint("DistanceY", 59, 2, 59, 1, Q("2.269138 mm")))
sketch1.addConstraint(Sketcher.Constraint("DistanceX", -1, 1, 46, 3, Q("5.082402 mm")))
sketch1.addConstraint(Sketcher.Constraint("DistanceY", -1, 1, 62, 3, Q("5.0824 mm")))
pad1 = doc.addObject("PartDesign::Pad", "Pad")
body.addObject(pad1)
pad1.Profile = sketch1
pad1.Length = 50

doc.recompute()
